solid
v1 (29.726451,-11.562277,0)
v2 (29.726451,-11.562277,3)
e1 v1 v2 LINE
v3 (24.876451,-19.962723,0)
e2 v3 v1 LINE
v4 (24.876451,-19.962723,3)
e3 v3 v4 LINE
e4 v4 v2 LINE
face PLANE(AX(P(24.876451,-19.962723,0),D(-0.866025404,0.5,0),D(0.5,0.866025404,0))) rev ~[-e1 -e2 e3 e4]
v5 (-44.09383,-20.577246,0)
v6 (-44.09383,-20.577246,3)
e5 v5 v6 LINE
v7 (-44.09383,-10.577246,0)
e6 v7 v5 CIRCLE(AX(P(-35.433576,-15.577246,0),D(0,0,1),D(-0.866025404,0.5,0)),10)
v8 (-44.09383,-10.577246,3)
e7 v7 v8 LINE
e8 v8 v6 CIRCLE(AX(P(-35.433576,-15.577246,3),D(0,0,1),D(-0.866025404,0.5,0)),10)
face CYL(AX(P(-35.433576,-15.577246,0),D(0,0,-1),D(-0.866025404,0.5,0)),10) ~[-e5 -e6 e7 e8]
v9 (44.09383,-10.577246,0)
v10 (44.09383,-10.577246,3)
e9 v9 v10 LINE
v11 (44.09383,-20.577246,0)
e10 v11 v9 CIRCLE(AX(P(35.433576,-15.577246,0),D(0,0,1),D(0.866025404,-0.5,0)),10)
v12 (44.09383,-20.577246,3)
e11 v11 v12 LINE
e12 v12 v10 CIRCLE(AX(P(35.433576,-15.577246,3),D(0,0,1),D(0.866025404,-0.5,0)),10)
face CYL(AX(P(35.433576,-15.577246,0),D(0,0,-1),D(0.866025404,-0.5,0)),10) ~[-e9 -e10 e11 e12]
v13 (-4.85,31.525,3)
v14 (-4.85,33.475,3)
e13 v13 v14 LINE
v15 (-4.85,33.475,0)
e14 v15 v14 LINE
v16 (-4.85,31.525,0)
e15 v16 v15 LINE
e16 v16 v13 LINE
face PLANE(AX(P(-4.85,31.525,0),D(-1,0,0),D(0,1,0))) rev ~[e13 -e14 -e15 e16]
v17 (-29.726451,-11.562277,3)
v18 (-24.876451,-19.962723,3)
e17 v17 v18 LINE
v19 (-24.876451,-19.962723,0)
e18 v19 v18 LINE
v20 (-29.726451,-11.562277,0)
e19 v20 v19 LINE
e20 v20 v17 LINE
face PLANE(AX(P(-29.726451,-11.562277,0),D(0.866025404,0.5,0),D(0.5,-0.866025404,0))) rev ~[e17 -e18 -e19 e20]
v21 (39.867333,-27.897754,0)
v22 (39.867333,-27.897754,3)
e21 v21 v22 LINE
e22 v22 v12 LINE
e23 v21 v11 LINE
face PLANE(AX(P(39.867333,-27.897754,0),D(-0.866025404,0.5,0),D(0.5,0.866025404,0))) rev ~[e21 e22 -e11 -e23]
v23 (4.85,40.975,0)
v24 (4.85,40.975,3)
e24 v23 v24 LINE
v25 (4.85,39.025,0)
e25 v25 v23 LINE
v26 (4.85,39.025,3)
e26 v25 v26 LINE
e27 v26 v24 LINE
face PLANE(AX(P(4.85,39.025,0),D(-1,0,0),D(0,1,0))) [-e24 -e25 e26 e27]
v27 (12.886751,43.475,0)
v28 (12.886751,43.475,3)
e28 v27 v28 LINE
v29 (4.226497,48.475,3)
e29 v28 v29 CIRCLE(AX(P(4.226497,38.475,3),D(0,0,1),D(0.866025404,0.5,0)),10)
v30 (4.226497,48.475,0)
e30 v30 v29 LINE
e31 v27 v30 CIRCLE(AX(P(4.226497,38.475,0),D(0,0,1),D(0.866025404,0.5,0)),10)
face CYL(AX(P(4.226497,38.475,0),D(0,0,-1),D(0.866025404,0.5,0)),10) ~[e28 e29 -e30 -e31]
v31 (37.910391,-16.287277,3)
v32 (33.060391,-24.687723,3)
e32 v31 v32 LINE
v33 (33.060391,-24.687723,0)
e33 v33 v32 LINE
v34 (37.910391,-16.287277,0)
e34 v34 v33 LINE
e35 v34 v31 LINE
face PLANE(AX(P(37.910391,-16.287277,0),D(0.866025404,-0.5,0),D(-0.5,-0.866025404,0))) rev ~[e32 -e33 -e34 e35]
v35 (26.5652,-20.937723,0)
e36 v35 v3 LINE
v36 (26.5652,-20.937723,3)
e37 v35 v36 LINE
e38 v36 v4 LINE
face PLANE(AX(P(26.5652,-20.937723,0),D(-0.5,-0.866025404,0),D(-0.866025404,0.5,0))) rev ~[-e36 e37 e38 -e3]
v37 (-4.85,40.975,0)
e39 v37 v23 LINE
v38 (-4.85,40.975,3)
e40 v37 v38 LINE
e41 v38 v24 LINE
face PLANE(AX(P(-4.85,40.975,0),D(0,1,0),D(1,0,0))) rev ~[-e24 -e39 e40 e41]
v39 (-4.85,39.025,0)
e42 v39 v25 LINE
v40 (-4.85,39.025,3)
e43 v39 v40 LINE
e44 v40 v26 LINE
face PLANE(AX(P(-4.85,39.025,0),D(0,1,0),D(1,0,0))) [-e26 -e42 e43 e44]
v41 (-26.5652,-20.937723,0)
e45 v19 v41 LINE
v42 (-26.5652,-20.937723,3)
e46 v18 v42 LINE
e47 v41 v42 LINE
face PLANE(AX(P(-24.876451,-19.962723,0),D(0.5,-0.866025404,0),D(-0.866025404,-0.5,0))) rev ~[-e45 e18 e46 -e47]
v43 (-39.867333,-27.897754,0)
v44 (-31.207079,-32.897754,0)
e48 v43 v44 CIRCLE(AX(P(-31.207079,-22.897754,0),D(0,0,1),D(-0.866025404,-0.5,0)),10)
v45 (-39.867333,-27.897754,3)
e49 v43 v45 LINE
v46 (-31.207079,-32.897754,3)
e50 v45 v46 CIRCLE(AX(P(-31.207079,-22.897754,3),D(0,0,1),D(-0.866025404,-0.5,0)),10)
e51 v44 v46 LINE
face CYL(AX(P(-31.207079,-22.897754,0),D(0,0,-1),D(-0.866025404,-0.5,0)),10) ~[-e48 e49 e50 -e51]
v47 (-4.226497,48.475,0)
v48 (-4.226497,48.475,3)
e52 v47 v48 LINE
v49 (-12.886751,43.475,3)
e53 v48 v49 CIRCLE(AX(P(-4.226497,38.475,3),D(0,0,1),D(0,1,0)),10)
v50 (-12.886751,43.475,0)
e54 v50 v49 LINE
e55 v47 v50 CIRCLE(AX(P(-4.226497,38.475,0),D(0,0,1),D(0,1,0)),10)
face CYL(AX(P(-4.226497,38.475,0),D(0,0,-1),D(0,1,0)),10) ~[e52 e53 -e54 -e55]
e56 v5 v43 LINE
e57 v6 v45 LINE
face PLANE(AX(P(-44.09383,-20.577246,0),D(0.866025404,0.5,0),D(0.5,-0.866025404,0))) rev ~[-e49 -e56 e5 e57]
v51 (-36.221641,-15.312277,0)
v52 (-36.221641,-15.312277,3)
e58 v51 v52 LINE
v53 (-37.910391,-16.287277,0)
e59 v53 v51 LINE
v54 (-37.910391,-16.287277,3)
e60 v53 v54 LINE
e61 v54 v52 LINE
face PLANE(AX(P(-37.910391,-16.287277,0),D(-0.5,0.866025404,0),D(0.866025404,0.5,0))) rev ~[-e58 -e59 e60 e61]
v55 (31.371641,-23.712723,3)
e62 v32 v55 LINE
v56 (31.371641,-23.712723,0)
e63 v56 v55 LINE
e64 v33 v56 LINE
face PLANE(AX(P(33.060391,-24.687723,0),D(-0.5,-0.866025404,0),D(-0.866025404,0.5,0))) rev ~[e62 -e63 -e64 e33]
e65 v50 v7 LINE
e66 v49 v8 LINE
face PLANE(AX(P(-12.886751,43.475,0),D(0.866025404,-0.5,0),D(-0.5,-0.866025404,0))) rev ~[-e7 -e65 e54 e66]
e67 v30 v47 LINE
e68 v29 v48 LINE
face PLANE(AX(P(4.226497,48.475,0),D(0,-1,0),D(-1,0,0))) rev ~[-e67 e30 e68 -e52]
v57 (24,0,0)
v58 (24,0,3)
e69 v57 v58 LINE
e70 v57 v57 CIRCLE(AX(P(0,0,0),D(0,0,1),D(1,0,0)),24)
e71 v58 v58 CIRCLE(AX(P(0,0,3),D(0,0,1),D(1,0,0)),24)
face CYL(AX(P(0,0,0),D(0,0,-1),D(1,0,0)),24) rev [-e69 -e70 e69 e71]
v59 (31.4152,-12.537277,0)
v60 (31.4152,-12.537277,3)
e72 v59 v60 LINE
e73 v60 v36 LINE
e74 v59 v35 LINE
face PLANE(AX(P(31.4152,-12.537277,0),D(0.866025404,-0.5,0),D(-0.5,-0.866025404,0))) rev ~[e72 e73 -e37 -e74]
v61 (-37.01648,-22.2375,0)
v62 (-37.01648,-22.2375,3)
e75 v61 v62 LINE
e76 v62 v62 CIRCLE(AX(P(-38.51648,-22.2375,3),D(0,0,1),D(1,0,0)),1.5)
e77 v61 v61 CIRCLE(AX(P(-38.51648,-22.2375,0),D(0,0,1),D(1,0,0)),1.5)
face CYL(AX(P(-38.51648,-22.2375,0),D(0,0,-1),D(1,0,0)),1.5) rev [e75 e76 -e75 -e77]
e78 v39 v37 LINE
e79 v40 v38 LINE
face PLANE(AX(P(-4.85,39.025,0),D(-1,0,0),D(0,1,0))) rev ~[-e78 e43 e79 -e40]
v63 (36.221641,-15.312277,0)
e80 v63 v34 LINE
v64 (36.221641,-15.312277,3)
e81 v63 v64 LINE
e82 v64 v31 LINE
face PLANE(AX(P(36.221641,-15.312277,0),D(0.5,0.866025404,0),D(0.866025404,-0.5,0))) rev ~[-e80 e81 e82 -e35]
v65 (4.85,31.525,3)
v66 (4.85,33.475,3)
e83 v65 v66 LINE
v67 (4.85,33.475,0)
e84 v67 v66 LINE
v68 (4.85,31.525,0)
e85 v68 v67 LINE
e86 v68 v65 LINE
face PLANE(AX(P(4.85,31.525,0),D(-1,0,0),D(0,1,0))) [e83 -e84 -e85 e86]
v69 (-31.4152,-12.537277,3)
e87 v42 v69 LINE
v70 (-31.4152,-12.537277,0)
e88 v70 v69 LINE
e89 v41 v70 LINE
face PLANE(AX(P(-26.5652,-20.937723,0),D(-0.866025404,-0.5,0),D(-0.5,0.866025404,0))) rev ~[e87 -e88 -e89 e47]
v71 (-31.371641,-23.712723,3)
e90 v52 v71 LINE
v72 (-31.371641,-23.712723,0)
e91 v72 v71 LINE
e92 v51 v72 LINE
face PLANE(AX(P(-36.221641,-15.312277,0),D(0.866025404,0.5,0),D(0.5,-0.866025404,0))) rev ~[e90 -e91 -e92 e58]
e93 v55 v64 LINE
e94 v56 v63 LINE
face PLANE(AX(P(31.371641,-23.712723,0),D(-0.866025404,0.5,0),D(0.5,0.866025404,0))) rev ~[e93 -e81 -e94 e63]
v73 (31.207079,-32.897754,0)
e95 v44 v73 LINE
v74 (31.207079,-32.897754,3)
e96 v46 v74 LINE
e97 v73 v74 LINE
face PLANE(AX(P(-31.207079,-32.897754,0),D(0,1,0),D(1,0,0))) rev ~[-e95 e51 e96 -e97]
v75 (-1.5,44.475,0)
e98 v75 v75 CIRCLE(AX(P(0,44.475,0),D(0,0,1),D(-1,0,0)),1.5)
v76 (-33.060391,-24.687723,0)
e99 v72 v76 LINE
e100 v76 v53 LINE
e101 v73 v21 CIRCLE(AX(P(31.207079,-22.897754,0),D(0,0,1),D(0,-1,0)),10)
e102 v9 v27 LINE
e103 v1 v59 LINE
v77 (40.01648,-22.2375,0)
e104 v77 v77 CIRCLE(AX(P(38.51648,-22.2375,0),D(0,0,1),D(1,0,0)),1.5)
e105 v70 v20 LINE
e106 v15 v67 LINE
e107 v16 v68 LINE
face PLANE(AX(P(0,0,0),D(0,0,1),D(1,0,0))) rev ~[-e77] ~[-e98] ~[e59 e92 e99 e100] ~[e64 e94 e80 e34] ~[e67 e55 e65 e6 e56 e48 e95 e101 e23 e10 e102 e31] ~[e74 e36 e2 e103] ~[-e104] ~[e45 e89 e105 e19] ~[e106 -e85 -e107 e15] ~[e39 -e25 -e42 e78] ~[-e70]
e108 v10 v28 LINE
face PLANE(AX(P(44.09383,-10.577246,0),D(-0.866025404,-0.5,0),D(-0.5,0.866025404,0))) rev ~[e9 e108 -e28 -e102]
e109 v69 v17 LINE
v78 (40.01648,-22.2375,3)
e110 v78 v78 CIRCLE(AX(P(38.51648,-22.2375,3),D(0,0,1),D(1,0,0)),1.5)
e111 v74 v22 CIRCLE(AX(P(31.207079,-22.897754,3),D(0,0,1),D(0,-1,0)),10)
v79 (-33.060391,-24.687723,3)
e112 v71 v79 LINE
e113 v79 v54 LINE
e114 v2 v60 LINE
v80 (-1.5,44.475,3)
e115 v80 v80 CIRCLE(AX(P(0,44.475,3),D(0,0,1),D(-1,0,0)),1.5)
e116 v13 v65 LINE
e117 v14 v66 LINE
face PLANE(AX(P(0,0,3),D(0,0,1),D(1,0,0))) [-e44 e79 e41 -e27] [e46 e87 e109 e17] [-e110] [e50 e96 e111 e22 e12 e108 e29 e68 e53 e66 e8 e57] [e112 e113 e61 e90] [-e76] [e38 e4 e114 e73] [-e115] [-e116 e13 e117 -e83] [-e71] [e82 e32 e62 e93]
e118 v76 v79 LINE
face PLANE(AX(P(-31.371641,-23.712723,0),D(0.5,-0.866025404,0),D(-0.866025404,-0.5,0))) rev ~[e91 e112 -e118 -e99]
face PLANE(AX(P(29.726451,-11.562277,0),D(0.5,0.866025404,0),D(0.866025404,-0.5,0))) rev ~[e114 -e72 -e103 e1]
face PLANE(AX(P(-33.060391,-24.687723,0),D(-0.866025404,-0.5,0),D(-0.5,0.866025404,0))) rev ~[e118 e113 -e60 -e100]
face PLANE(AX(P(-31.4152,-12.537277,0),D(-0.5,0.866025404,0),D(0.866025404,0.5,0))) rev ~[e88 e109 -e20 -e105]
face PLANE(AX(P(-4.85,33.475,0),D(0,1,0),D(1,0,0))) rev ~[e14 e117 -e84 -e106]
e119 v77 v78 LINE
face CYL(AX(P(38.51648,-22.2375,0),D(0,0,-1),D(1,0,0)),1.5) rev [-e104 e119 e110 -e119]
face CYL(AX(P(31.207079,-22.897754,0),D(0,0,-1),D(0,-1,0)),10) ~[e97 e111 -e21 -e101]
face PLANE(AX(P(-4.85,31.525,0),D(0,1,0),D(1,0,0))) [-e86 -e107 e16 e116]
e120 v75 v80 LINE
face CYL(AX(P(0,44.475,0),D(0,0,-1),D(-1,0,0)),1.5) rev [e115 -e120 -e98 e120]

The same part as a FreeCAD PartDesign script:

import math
import FreeCAD as App
import Part
import Sketcher

V = App.Vector
Q = App.Units.Quantity


def add_polygon(sketch, points):
    """Adds a closed chain of lines whose ends are joined by coincident constraints."""
    first, n = sketch.GeometryCount, len(points)
    for a, b in zip(points, points[1:] + points[:1]):
        sketch.addGeometry(Part.LineSegment(App.Vector(*a, 0), App.Vector(*b, 0)), False)
    for i in range(n):
        sketch.addConstraint(Sketcher.Constraint("Coincident", first + i, 2, first + (i + 1) % n, 1))

doc = App.newDocument("Part")
params = doc.addObject("Spreadsheet::Sheet", "Params")
for row, (alias, value) in enumerate([
    ("sketch1_diameter", "3 mm"),
    ("sketch1_diameter2", "48 mm"),
    ("sketch1_radius", "10 mm"),
    ("sketch1_width", "9.7 mm"),
    ("sketch1_length", "9.7 mm"),
    ("pad1_length", "3 mm"),
], start=1):
    params.set(f"A{row}", alias)
    params.set(f"B{row}", "=" + value)
    params.setAlias(f"B{row}", alias)

body = doc.addObject("PartDesign::Body", "Body")

sketch1 = doc.addObject("Sketcher::SketchObject", "Sketch")
body.addObject(sketch1)
sketch1.AttachmentSupport = (doc.XY_Plane, [""])
sketch1.MapMode = "FlatFace"
sketch1.addGeometry(Part.LineSegment(V(-31.2, -32.9, 0), V(31.2, -32.9, 0)), False)
sketch1.addGeometry(Part.ArcOfCircle(Part.Circle(V(31.2, -22.9, 0), V(0, 0, 1), 10), math.radians(-90), math.radians(-30)), False)
sketch1.addGeometry(Part.LineSegment(V(39.9, -27.9, 0), V(44.1, -20.6, 0)), False)
sketch1.addGeometry(Part.ArcOfCircle(Part.Circle(V(35.4, -15.6, 0), V(0, 0, 1), 10), math.radians(-30), math.radians(30)), False)
sketch1.addGeometry(Part.LineSegment(V(44.1, -10.6, 0), V(12.9, 43.5, 0)), False)
sketch1.addGeometry(Part.ArcOfCircle(Part.Circle(V(4.2, 38.5, 0), V(0, 0, 1), 10), math.radians(30), math.radians(90)), False)
sketch1.addGeometry(Part.LineSegment(V(4.2, 48.5, 0), V(-4.2, 48.5, 0)), False)
sketch1.addGeometry(Part.ArcOfCircle(Part.Circle(V(-4.2, 38.5, 0), V(0, 0, 1), 10), math.radians(90), math.radians(150)), False)
sketch1.addGeometry(Part.LineSegment(V(-12.9, 43.5, 0), V(-44.1, -10.6, 0)), False)
sketch1.addGeometry(Part.ArcOfCircle(Part.Circle(V(-35.4, -15.6, 0), V(0, 0, 1), 10), math.radians(150), math.radians(210)), False)
sketch1.addGeometry(Part.LineSegment(V(-44.1, -20.6, 0), V(-39.9, -27.9, 0)), False)
sketch1.addGeometry(Part.ArcOfCircle(Part.Circle(V(-31.2, -22.9, 0), V(0, 0, 1), 10), math.radians(-150), math.radians(-90)), False)
sketch1.addGeometry(Part.Circle(V(-38.5, -22.2, 0), V(0, 0, 1), 1.5), False)
add_polygon(sketch1, [(-31.4, -23.7), (-33.1, -24.7), (-37.9, -16.3), (-36.2, -15.3)])
add_polygon(sketch1, [(-24.9, -20), (-26.6, -20.9), (-31.4, -12.5), (-29.7, -11.6)])
add_polygon(sketch1, [(29.7, -11.6), (31.4, -12.5), (26.6, -20.9), (24.9, -20)])
sketch1.addGeometry(Part.Circle(V(38.5, -22.2, 0), V(0, 0, 1), 1.5), False)
add_polygon(sketch1, [(36.2, -15.3), (37.9, -16.3), (33.1, -24.7), (31.4, -23.7)])
sketch1.addGeometry(Part.Circle(V(0, 0, 0), V(0, 0, 1), 24), False)
add_polygon(sketch1, [(4.8, 31.5), (-4.8, 31.5), (-4.8, 33.5), (4.8, 33.5)])
add_polygon(sketch1, [(4.8, 39), (-4.8, 39), (-4.8, 41), (4.8, 41)])
sketch1.addGeometry(Part.Circle(V(0, 44.5, 0), V(0, 0, 1), 1.5), False)
sketch1.addConstraint([
    Sketcher.Constraint("Tangent", 0, 2, 1, 1),
    Sketcher.Constraint("Tangent", 1, 2, 2, 1),
    Sketcher.Constraint("Tangent", 2, 2, 3, 1),
    Sketcher.Constraint("Tangent", 3, 2, 4, 1),
    Sketcher.Constraint("Tangent", 4, 2, 5, 1),
    Sketcher.Constraint("Tangent", 5, 2, 6, 1),
    Sketcher.Constraint("Tangent", 6, 2, 7, 1),
    Sketcher.Constraint("Tangent", 7, 2, 8, 1),
    Sketcher.Constraint("Tangent", 8, 2, 9, 1),
    Sketcher.Constraint("Tangent", 9, 2, 10, 1),
    Sketcher.Constraint("Tangent", 10, 2, 11, 1),
    Sketcher.Constraint("Tangent", 11, 2, 0, 1),
    Sketcher.Constraint("Horizontal", 0),
    Sketcher.Constraint("Horizontal", 6),
    Sketcher.Constraint("Horizontal", 31),
    Sketcher.Constraint("Vertical", 32),
    Sketcher.Constraint("Horizontal", 33),
    Sketcher.Constraint("Vertical", 34),
    Sketcher.Constraint("Horizontal", 35),
    Sketcher.Constraint("Vertical", 36),
    Sketcher.Constraint("Horizontal", 37),
    Sketcher.Constraint("Vertical", 38),
    Sketcher.Constraint("Coincident", 30, 3, -1, 1),
    Sketcher.Constraint("Equal", 1, 3),
    Sketcher.Constraint("Equal", 3, 5),
    Sketcher.Constraint("Equal", 5, 7),
    Sketcher.Constraint("Equal", 7, 9),
    Sketcher.Constraint("Equal", 9, 11),
    Sketcher.Constraint("Equal", 12, 25),
    Sketcher.Constraint("Equal", 25, 39),
    Sketcher.Constraint("Symmetric", 3, 3, 9, 3, -2),
    Sketcher.Constraint("Symmetric", 12, 3, 25, 3, -2),
    Sketcher.Constraint("Symmetric", 18, 2, 21, 2, -2),
    Sketcher.Constraint("Symmetric", 17, 2, 22, 2, -2),
    Sketcher.Constraint("Symmetric", 20, 2, 23, 2, -2),
    Sketcher.Constraint("Symmetric", 19, 2, 24, 2, -2),
    Sketcher.Constraint("Symmetric", 14, 2, 26, 2, -2),
    Sketcher.Constraint("Symmetric", 13, 2, 27, 2, -2),
    Sketcher.Constraint("Symmetric", 16, 2, 28, 2, -2),
    Sketcher.Constraint("Symmetric", 15, 2, 29, 2, -2),
    Sketcher.Constraint("PointOnObject", 39, 3, -2),
    Sketcher.Constraint("Parallel", 2, 8),
    Sketcher.Constraint("Parallel", 4, 10),
    Sketcher.Constraint("Perpendicular", 10, 13),
    Sketcher.Constraint("Perpendicular", 13, 14),
    Sketcher.Constraint("Perpendicular", 14, 15),
    Sketcher.Constraint("Perpendicular", 15, 16),
    Sketcher.Constraint("Perpendicular", 16, 17),
    Sketcher.Constraint("Perpendicular", 17, 18),
    Sketcher.Constraint("Perpendicular", 18, 19),
    Sketcher.Constraint("Perpendicular", 19, 20),
    Sketcher.Constraint("Perpendicular", 8, 21),
    Sketcher.Constraint("Vertical", 32, 2, 35, 2),
    Sketcher.Constraint("Vertical", 34, 2, 37, 2),
    Sketcher.Constraint("Equal", 34, 36),
    Sketcher.Constraint("Equal", 15, 17),
    Sketcher.Constraint("Equal", 16, 18),
    Sketcher.Constraint("Diameter", 12, Q("3 mm")),
    Sketcher.Constraint("Diameter", 30, Q("48 mm")),
    Sketcher.Constraint("Radius", 1, Q("10 mm")),
    Sketcher.Constraint("Angle", 2, Q("60 deg")),
    Sketcher.Constraint("DistanceX", 31, 2, 31, 1, Q("9.7 mm")),
    Sketcher.Constraint("DistanceY", 5, 3, 39, 3, Q("6 mm")),
    Sketcher.Constraint("DistanceY", 32, 2, 7, 3, Q("5 mm")),
    Sketcher.Constraint("Distance", 14, Q("9.7 mm")),
    Sketcher.Constraint("DistanceY", 32, 1, 32, 2, Q("1.95 mm")),
    Sketcher.Constraint("DistanceY", 31, 2, 35, 2, Q("7.5 mm")),
    Sketcher.Constraint("Distance", 13, Q("1.95 mm")),
    Sketcher.Constraint("DistanceX", 31, 2, -1, 1, Q("4.85 mm")),
    Sketcher.Constraint("DistanceY", 13, 2, 17, 2, Q("3.75 mm")),
    Sketcher.Constraint("DistanceY", -1, 1, 5, 3, Q("38.475 mm")),
    Sketcher.Constraint("DistanceY", 12, 3, -1, 1, Q("22.2375 mm")),
    Sketcher.Constraint("DistanceX", 17, 2, -1, 1, Q("26.5652 mm")),
    Sketcher.Constraint("DistanceX", 12, 3, 11, 3, Q("7.309401 mm")),
    Sketcher.Constraint("DistanceX", 0, 1, 0, 2, Q("62.414158 mm")),
    Sketcher.Constraint("DistanceX", 6, 2, 6, 1, Q("8.452995 mm")),
    Sketcher.Constraint("DistanceX", -1, 1, 2, 2, Q("44.09383 mm")),
    Sketcher.Constraint("DistanceX", 13, 2, -1, 1, Q("33.060391 mm")),
    Sketcher.Constraint("DistanceY", 13, 2, 11, 3, Q("1.789969 mm")),
])
sketch1.setExpression("Constraints[81]", "Params.sketch1_diameter")
sketch1.setExpression("Constraints[82]", "Params.sketch1_diameter2")
sketch1.setExpression("Constraints[83]", "Params.sketch1_radius")
sketch1.setExpression("Constraints[85]", "Params.sketch1_width")
sketch1.setExpression("Constraints[88]", "Params.sketch1_length")
pad1 = doc.addObject("PartDesign::Pad", "Pad")
body.addObject(pad1)
pad1.Profile = sketch1
pad1.setExpression("Length", "Params.pad1_length")

doc.recompute()
